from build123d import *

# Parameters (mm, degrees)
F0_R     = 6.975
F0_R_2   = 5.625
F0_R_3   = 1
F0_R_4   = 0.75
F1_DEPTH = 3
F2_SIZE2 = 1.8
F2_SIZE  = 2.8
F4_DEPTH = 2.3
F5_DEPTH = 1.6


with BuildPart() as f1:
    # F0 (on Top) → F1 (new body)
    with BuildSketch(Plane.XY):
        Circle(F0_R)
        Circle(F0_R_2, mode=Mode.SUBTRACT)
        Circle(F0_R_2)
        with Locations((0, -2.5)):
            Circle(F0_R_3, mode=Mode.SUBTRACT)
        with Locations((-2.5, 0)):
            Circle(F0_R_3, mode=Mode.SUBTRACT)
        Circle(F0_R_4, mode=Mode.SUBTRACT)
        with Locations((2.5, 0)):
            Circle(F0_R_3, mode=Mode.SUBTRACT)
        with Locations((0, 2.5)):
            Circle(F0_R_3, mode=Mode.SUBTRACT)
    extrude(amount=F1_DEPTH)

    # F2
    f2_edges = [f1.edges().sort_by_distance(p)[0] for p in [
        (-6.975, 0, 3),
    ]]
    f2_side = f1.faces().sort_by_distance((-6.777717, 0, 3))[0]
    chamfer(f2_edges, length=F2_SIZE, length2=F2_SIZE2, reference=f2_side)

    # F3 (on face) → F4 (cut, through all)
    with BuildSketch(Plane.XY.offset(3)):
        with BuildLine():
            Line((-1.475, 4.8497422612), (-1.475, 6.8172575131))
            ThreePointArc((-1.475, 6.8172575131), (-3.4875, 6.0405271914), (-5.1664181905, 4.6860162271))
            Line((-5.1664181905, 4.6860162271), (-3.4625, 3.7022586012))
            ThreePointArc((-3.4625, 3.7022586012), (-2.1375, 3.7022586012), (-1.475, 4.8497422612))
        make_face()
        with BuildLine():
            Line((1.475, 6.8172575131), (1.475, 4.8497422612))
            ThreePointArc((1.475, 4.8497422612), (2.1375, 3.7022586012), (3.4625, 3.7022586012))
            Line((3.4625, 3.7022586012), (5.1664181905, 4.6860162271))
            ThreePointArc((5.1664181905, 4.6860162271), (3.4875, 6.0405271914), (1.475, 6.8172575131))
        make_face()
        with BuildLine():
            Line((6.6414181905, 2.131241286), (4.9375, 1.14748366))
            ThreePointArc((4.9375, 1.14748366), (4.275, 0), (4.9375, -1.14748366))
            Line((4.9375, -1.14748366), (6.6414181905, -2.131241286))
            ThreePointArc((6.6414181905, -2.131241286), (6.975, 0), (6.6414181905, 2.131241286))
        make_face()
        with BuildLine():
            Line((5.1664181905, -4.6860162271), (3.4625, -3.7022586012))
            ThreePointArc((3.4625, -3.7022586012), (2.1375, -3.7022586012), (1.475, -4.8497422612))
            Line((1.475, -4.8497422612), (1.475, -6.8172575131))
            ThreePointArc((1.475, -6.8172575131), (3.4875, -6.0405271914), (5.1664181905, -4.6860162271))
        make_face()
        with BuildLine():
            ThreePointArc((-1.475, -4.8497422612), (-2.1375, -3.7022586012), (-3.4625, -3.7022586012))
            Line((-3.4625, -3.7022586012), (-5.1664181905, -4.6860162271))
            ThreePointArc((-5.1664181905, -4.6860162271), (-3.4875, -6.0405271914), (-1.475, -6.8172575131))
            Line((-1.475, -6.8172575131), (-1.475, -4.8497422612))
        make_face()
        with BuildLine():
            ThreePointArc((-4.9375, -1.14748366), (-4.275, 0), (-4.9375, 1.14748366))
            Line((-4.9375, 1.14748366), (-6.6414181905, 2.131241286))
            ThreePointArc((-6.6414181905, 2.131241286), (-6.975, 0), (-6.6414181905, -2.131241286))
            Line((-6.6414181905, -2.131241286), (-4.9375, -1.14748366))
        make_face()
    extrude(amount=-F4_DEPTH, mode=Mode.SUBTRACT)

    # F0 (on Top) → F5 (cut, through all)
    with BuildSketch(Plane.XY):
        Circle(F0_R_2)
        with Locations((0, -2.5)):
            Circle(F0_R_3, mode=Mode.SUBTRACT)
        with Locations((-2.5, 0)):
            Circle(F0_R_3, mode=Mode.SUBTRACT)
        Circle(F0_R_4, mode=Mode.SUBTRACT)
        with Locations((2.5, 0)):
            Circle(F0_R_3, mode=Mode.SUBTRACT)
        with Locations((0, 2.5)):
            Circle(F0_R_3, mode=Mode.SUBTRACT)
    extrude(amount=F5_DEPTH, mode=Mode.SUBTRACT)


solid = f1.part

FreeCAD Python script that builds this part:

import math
import FreeCAD as App
import Part
import Sketcher

V = App.Vector
Q = App.Units.Quantity


def edges_at(feature, points):
    """Names of the edges that pass closest to the given points."""
    edges = feature.Shape.Edges
    near = lambda p: min(range(len(edges)), key=lambda i: edges[i].distToShape(Part.Vertex(*p))[0])
    return sorted({f"Edge{near(p) + 1}" for p in points})

doc = App.newDocument("Part")
body = doc.addObject("PartDesign::Body", "Body")

sketch1 = body.newObject("Sketcher::SketchObject", "Sketch")
sketch1.AttachmentSupport = (doc.getObject("XY_Plane"), [""])
sketch1.MapMode = "FlatFace"
sketch1.addGeometry(Part.Circle(V(0, 0, 0), V(0, 0, 1), 7), False)
sketch1.addGeometry(Part.Circle(V(0, -2.5, 0), V(0, 0, 1), 1), False)
sketch1.addGeometry(Part.Circle(V(-2.5, 0, 0), V(0, 0, 1), 1), False)
sketch1.addGeometry(Part.Circle(V(0, 0, 0), V(0, 0, 1), 0.8), False)
sketch1.addGeometry(Part.Circle(V(2.5, 0, 0), V(0, 0, 1), 1), False)
sketch1.addGeometry(Part.Circle(V(0, 2.5, 0), V(0, 0, 1), 1), False)
sketch1.addConstraint(Sketcher.Constraint("Coincident", 0, 3, -1, 1))
sketch1.addConstraint(Sketcher.Constraint("Coincident", 3, 3, -1, 1))
sketch1.addConstraint(Sketcher.Constraint("Equal", 1, 2))
sketch1.addConstraint(Sketcher.Constraint("Equal", 2, 4))
sketch1.addConstraint(Sketcher.Constraint("Equal", 4, 5))
sketch1.addConstraint(Sketcher.Constraint("Symmetric", 2, 3, 4, 3, -1, 1))
sketch1.addConstraint(Sketcher.Constraint("Symmetric", 1, 3, 5, 3, -1, 1))
sketch1.addConstraint(Sketcher.Constraint("PointOnObject", 1, 3, -2))
sketch1.addConstraint(Sketcher.Constraint("PointOnObject", 2, 3, -1))
sketch1.addConstraint(Sketcher.Constraint("Diameter", 1, Q("2 mm")))
sketch1.addConstraint(Sketcher.Constraint("Diameter", 3, Q("1.5 mm")))
sketch1.addConstraint(Sketcher.Constraint("Diameter", 0, Q("13.95 mm")))
sketch1.addConstraint(Sketcher.Constraint("DistanceX", 2, 3, 4, 3, Q("5 mm")))
sketch1.addConstraint(Sketcher.Constraint("DistanceY", 1, 3, 5, 3, Q("5 mm")))
pad1 = body.newObject("PartDesign::Pad", "Pad")
pad1.Profile = sketch1
pad1.Length = 3
doc.recompute()

chamfer = body.newObject("PartDesign::Chamfer", "Chamfer")
chamfer.Base = (pad1, edges_at(pad1, [(-6.975, 0, 3)]))
chamfer.ChamferType = "Two distances"
chamfer.Size = 2.8
chamfer.Size2 = 1.8
chamfer.FlipDirection = True

sketch2 = body.newObject("Sketcher::SketchObject", "Sketch001")
sketch2.AttachmentSupport = (doc.getObject("XY_Plane"), [""])
sketch2.MapMode = "FlatFace"
sketch2.AttachmentOffset = App.Placement(V(0, 0, 3), App.Rotation())
sketch2.addGeometry(Part.LineSegment(V(-1.5, 4.8, 0), V(-1.5, 6.8, 0)), False)
sketch2.addGeometry(Part.ArcOfCircle(Part.Circle(V(0, 0, 0), V(0, 0, 1), 7), math.radians(102), math.radians(138)), False)
sketch2.addGeometry(Part.LineSegment(V(-5.2, 4.7, 0), V(-3.5, 3.7, 0)), False)
sketch2.addGeometry(Part.ArcOfCircle(Part.Circle(V(-2.8, 4.8, 0), V(0, 0, 1), 1.3), math.radians(-120), math.radians(0)), False)
sketch2.addGeometry(Part.LineSegment(V(1.5, 6.8, 0), V(1.5, 4.8, 0)), False)
sketch2.addGeometry(Part.ArcOfCircle(Part.Circle(V(2.8, 4.8, 0), V(0, 0, 1), 1.3), math.radians(180), math.radians(300)), False)
sketch2.addGeometry(Part.LineSegment(V(3.5, 3.7, 0), V(5.2, 4.7, 0)), False)
sketch2.addGeometry(Part.ArcOfCircle(Part.Circle(V(0, 0, 0), V(0, 0, 1), 7), math.radians(42), math.radians(78)), False)
sketch2.addGeometry(Part.LineSegment(V(6.6, 2.1, 0), V(4.9, 1.1, 0)), False)
sketch2.addGeometry(Part.ArcOfCircle(Part.Circle(V(5.6, 0, 0), V(0, 0, 1), 1.3), math.radians(120), math.radians(240)), False)
sketch2.addGeometry(Part.LineSegment(V(4.9, -1.1, 0), V(6.6, -2.1, 0)), False)
sketch2.addGeometry(Part.ArcOfCircle(Part.Circle(V(0, 0, 0), V(0, 0, 1), 7), math.radians(-18), math.radians(18)), False)
sketch2.addGeometry(Part.LineSegment(V(5.2, -4.7, 0), V(3.5, -3.7, 0)), False)
sketch2.addGeometry(Part.ArcOfCircle(Part.Circle(V(2.8, -4.8, 0), V(0, 0, 1), 1.3), math.radians(60), math.radians(180)), False)
sketch2.addGeometry(Part.LineSegment(V(1.5, -4.8, 0), V(1.5, -6.8, 0)), False)
sketch2.addGeometry(Part.ArcOfCircle(Part.Circle(V(0, 0, 0), V(0, 0, 1), 7), math.radians(-78), math.radians(-42)), False)
sketch2.addGeometry(Part.ArcOfCircle(Part.Circle(V(-2.8, -4.8, 0), V(0, 0, 1), 1.3), math.radians(0), math.radians(120)), False)
sketch2.addGeometry(Part.LineSegment(V(-3.5, -3.7, 0), V(-5.2, -4.7, 0)), False)
sketch2.addGeometry(Part.ArcOfCircle(Part.Circle(V(0, 0, 0), V(0, 0, 1), 7), math.radians(-138), math.radians(-102)), False)
sketch2.addGeometry(Part.LineSegment(V(-1.5, -6.8, 0), V(-1.5, -4.8, 0)), False)
sketch2.addGeometry(Part.ArcOfCircle(Part.Circle(V(-5.6, 0, 0), V(0, 0, 1), 1.3), math.radians(-60), math.radians(60)), False)
sketch2.addGeometry(Part.LineSegment(V(-4.9, 1.1, 0), V(-6.6, 2.1, 0)), False)
sketch2.addGeometry(Part.ArcOfCircle(Part.Circle(V(0, 0, 0), V(0, 0, 1), 7), math.radians(162), math.radians(198)), False)
sketch2.addGeometry(Part.LineSegment(V(-6.6, -2.1, 0), V(-4.9, -1.1, 0)), False)
sketch2.addConstraint(Sketcher.Constraint("Coincident", 0, 2, 1, 1))
sketch2.addConstraint(Sketcher.Constraint("Coincident", 1, 2, 2, 1))
sketch2.addConstraint(Sketcher.Constraint("Tangent", 2, 2, 3, 1))
sketch2.addConstraint(Sketcher.Constraint("Tangent", 3, 2, 0, 1))
sketch2.addConstraint(Sketcher.Constraint("Tangent", 4, 2, 5, 1))
sketch2.addConstraint(Sketcher.Constraint("Tangent", 5, 2, 6, 1))
sketch2.addConstraint(Sketcher.Constraint("Coincident", 6, 2, 7, 1))
sketch2.addConstraint(Sketcher.Constraint("Coincident", 7, 2, 4, 1))
sketch2.addConstraint(Sketcher.Constraint("Tangent", 8, 2, 9, 1))
sketch2.addConstraint(Sketcher.Constraint("Tangent", 9, 2, 10, 1))
sketch2.addConstraint(Sketcher.Constraint("Coincident", 10, 2, 11, 1))
sketch2.addConstraint(Sketcher.Constraint("Coincident", 11, 2, 8, 1))
sketch2.addConstraint(Sketcher.Constraint("Tangent", 12, 2, 13, 1))
sketch2.addConstraint(Sketcher.Constraint("Tangent", 13, 2, 14, 1))
sketch2.addConstraint(Sketcher.Constraint("Coincident", 14, 2, 15, 1))
sketch2.addConstraint(Sketcher.Constraint("Coincident", 15, 2, 12, 1))
sketch2.addConstraint(Sketcher.Constraint("Tangent", 16, 2, 17, 1))
sketch2.addConstraint(Sketcher.Constraint("Coincident", 17, 2, 18, 1))
sketch2.addConstraint(Sketcher.Constraint("Coincident", 18, 2, 19, 1))
sketch2.addConstraint(Sketcher.Constraint("Tangent", 19, 2, 16, 1))
sketch2.addConstraint(Sketcher.Constraint("Tangent", 20, 2, 21, 1))
sketch2.addConstraint(Sketcher.Constraint("Coincident", 21, 2, 22, 1))
sketch2.addConstraint(Sketcher.Constraint("Coincident", 22, 2, 23, 1))
sketch2.addConstraint(Sketcher.Constraint("Tangent", 23, 2, 20, 1))
sketch2.addConstraint(Sketcher.Constraint("Vertical", 0))
sketch2.addConstraint(Sketcher.Constraint("Vertical", 4))
sketch2.addConstraint(Sketcher.Constraint("Vertical", 14))
sketch2.addConstraint(Sketcher.Constraint("Vertical", 19))
sketch2.addConstraint(Sketcher.Constraint("Coincident", 1, 3, -1, 1))
sketch2.addConstraint(Sketcher.Constraint("Coincident", 7, 3, -1, 1))
sketch2.addConstraint(Sketcher.Constraint("Coincident", 11, 3, -1, 1))
sketch2.addConstraint(Sketcher.Constraint("Coincident", 15, 3, -1, 1))
sketch2.addConstraint(Sketcher.Constraint("Coincident", 18, 3, -1, 1))
sketch2.addConstraint(Sketcher.Constraint("Coincident", 22, 3, -1, 1))
sketch2.addConstraint(Sketcher.Constraint("Equal", 3, 5))
sketch2.addConstraint(Sketcher.Constraint("Equal", 1, 7))
sketch2.addConstraint(Sketcher.Constraint("Equal", 5, 9))
sketch2.addConstraint(Sketcher.Constraint("Equal", 7, 11))
sketch2.addConstraint(Sketcher.Constraint("Equal", 9, 13))
sketch2.addConstraint(Sketcher.Constraint("Equal", 11, 15))
sketch2.addConstraint(Sketcher.Constraint("Equal", 13, 16))
sketch2.addConstraint(Sketcher.Constraint("Equal", 15, 18))
sketch2.addConstraint(Sketcher.Constraint("Equal", 16, 20))
sketch2.addConstraint(Sketcher.Constraint("Equal", 18, 22))
sketch2.addConstraint(Sketcher.Constraint("Symmetric", 3, 3, 13, 3, -1, 1))
sketch2.addConstraint(Sketcher.Constraint("Symmetric", 5, 3, 16, 3, -1, 1))
sketch2.addConstraint(Sketcher.Constraint("Symmetric", 9, 3, 20, 3, -1, 1))
sketch2.addConstraint(Sketcher.Constraint("Symmetric", 3, 3, 5, 3, -2))
sketch2.addConstraint(Sketcher.Constraint("Symmetric", 8, 2, 20, 2, -2))
sketch2.addConstraint(Sketcher.Constraint("Parallel", 6, 8))
sketch2.addConstraint(Sketcher.Constraint("Parallel", 2, 10))
sketch2.addConstraint(Sketcher.Constraint("Parallel", 10, 12))
sketch2.addConstraint(Sketcher.Constraint("Parallel", 8, 17))
sketch2.addConstraint(Sketcher.Constraint("Parallel", 12, 21))
sketch2.addConstraint(Sketcher.Constraint("Parallel", 17, 23))
sketch2.addConstraint(Sketcher.Constraint("Equal", 6, 8))
sketch2.addConstraint(Sketcher.Constraint("Angle", 2, Q("-30 deg")))
sketch2.addConstraint(Sketcher.Constraint("Radius", 1, Q("6.975 mm")))
sketch2.addConstraint(Sketcher.Constraint("Radius", 3, Q("1.325 mm")))
sketch2.addConstraint(Sketcher.Constraint("DistanceX", 3, 3, -1, 1, Q("2.8 mm")))
sketch2.addConstraint(Sketcher.Constraint("DistanceX", -1, 1, 9, 3, Q("5.6 mm")))
pocket1 = body.newObject("PartDesign::Pocket", "Pocket")
pocket1.Profile = sketch2
pocket1.Length = 2.3

sketch3 = body.newObject("Sketcher::SketchObject", "Sketch002")
sketch3.AttachmentSupport = (doc.getObject("XY_Plane"), [""])
sketch3.MapMode = "FlatFace"
sketch3.addGeometry(Part.Circle(V(0, 0, 0), V(0, 0, 1), 5.6), False)
sketch3.addGeometry(Part.Circle(V(0, -2.5, 0), V(0, 0, 1), 1), False)
sketch3.addGeometry(Part.Circle(V(-2.5, 0, 0), V(0, 0, 1), 1), False)
sketch3.addGeometry(Part.Circle(V(0, 0, 0), V(0, 0, 1), 0.8), False)
sketch3.addGeometry(Part.Circle(V(2.5, 0, 0), V(0, 0, 1), 1), False)
sketch3.addGeometry(Part.Circle(V(0, 2.5, 0), V(0, 0, 1), 1), False)
sketch3.addConstraint(Sketcher.Constraint("Coincident", 0, 3, -1, 1))
sketch3.addConstraint(Sketcher.Constraint("Coincident", 3, 3, -1, 1))
sketch3.addConstraint(Sketcher.Constraint("Equal", 1, 2))
sketch3.addConstraint(Sketcher.Constraint("Equal", 2, 4))
sketch3.addConstraint(Sketcher.Constraint("Equal", 4, 5))
sketch3.addConstraint(Sketcher.Constraint("Symmetric", 2, 3, 4, 3, -1, 1))
sketch3.addConstraint(Sketcher.Constraint("Symmetric", 1, 3, 5, 3, -1, 1))
sketch3.addConstraint(Sketcher.Constraint("PointOnObject", 1, 3, -2))
sketch3.addConstraint(Sketcher.Constraint("PointOnObject", 2, 3, -1))
sketch3.addConstraint(Sketcher.Constraint("Diameter", 1, Q("2 mm")))
sketch3.addConstraint(Sketcher.Constraint("Diameter", 3, Q("1.5 mm")))
sketch3.addConstraint(Sketcher.Constraint("Diameter", 0, Q("11.25 mm")))
sketch3.addConstraint(Sketcher.Constraint("DistanceX", 2, 3, 4, 3, Q("5 mm")))
sketch3.addConstraint(Sketcher.Constraint("DistanceY", 1, 3, 5, 3, Q("5 mm")))
pocket2 = body.newObject("PartDesign::Pocket", "Pocket001")
pocket2.Profile = sketch3
pocket2.Length = 1.6
pocket2.Reversed = True

doc.recompute()
